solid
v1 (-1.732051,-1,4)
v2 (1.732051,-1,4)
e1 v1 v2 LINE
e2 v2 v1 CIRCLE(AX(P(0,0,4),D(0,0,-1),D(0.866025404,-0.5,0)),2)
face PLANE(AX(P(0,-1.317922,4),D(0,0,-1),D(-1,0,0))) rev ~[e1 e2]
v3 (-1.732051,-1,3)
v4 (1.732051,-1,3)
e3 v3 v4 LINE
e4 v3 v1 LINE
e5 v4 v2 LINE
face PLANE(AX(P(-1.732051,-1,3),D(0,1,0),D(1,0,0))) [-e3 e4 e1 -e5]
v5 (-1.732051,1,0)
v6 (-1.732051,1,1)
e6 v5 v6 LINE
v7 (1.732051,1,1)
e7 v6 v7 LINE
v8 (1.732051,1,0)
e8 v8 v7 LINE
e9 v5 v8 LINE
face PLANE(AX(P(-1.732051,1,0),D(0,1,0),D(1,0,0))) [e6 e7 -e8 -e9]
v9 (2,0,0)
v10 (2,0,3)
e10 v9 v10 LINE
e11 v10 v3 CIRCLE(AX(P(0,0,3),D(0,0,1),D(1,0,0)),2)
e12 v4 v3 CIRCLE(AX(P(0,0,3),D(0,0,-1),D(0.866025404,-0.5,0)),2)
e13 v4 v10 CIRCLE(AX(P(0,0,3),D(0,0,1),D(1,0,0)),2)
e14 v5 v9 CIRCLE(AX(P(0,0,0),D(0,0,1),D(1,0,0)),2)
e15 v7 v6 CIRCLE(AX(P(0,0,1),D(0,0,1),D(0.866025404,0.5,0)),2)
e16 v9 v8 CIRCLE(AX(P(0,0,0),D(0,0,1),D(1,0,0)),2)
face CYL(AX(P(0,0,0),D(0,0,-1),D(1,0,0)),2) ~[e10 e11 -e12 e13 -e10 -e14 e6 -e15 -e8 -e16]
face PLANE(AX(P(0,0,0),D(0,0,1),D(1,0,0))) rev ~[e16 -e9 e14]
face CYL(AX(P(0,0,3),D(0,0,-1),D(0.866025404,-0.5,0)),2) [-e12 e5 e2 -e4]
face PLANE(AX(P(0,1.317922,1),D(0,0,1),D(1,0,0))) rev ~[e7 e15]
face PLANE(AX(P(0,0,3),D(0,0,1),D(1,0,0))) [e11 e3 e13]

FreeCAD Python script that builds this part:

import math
import FreeCAD as App
import Part
import Sketcher
from FreeCAD import Vector
Q = App.Units.Quantity

doc = App.newDocument("Part")
params = doc.addObject("Spreadsheet::Sheet", "Params")
for row, (alias, value) in enumerate([
    ("sketch1_diameter", "4 mm"),
    ("pad1_length", "3 mm"),
    ("sketch2_radius", "2 mm"),
    ("pad2_length", "1 mm"),
    ("sketch3_radius", "2 mm"),
    ("pocket1_length", "1 mm"),
], start=1):
    params.set(f"A{row}", alias)
    params.set(f"B{row}", "=" + value)
    params.setAlias(f"B{row}", alias)

body = doc.addObject("PartDesign::Body", "Body")

# Sketch on XY plane
sketch1 = body.newObject("Sketcher::SketchObject", "Sketch")
sketch1.AttachmentSupport = (doc.getObject("XY_Plane"), [""])
sketch1.MapMode = "FlatFace"
sketch1.addGeometry(Part.Circle(Vector(0, 0, 0), Vector(0, 0, 1), 2), False)
sketch1.addConstraint([
    Sketcher.Constraint("Coincident", 0, 3, -1, 1),
    Sketcher.Constraint("Diameter", 0, Q("4 mm")),
])
sketch1.setExpression("Constraints[1]", "Params.sketch1_diameter")
pad1 = body.newObject("PartDesign::Pad", "Pad")
pad1.Profile = sketch1
pad1.setExpression("Length", "Params.pad1_length")

# Sketch on XY plane
sketch2 = body.newObject("Sketcher::SketchObject", "Sketch001")
sketch2.AttachmentSupport = (doc.getObject("XY_Plane"), [""])
sketch2.MapMode = "FlatFace"
sketch2.AttachmentOffset = App.Placement(Vector(0, 0, 3), App.Rotation())
sketch2.addGeometry([
    Part.LineSegment(Vector(1.7, -1, 0), Vector(-1.7, -1, 0)),
    Part.ArcOfCircle(Part.Circle(Vector(0, 0, 0), Vector(0, 0, 1), 2), math.radians(-150), math.radians(-30)),
], False)
sketch2.addConstraint([
    Sketcher.Constraint("Coincident", 0, 1, 1, 2),
    Sketcher.Constraint("Coincident", 1, 1, 0, 2),
    Sketcher.Constraint("Horizontal", 0),
    Sketcher.Constraint("Coincident", 1, 3, -1, 1),
    Sketcher.Constraint("Radius", 1, Q("2 mm")),
    Sketcher.Constraint("DistanceY", 0, 1, -1, 1, Q("1 mm")),
])
sketch2.setExpression("Constraints[4]", "Params.sketch2_radius")
pad2 = body.newObject("PartDesign::Pad", "Pad001")
pad2.Profile = sketch2
pad2.setExpression("Length", "Params.pad2_length")

# Sketch on XY plane
sketch3 = body.newObject("Sketcher::SketchObject", "Sketch002")
sketch3.AttachmentSupport = (doc.getObject("XY_Plane"), [""])
sketch3.MapMode = "FlatFace"
sketch3.addGeometry([
    Part.LineSegment(Vector(1.7, 1, 0), Vector(-1.7, 1, 0)),
    Part.ArcOfCircle(Part.Circle(Vector(0, 0, 0), Vector(0, 0, 1), 2), math.radians(30), math.radians(150)),
], False)
sketch3.addConstraint([
    Sketcher.Constraint("Coincident", 0, 1, 1, 1),
    Sketcher.Constraint("Coincident", 1, 2, 0, 2),
    Sketcher.Constraint("Horizontal", 0),
    Sketcher.Constraint("Coincident", 1, 3, -1, 1),
    Sketcher.Constraint("Radius", 1, Q("2 mm")),
    Sketcher.Constraint("DistanceY", -1, 1, 0, 1, Q("1 mm")),
])
sketch3.setExpression("Constraints[4]", "Params.sketch3_radius")
pocket1 = body.newObject("PartDesign::Pocket", "Pocket")
pocket1.Profile = sketch3
pocket1.setExpression("Length", "Params.pocket1_length")
pocket1.Reversed = True

doc.recompute()
